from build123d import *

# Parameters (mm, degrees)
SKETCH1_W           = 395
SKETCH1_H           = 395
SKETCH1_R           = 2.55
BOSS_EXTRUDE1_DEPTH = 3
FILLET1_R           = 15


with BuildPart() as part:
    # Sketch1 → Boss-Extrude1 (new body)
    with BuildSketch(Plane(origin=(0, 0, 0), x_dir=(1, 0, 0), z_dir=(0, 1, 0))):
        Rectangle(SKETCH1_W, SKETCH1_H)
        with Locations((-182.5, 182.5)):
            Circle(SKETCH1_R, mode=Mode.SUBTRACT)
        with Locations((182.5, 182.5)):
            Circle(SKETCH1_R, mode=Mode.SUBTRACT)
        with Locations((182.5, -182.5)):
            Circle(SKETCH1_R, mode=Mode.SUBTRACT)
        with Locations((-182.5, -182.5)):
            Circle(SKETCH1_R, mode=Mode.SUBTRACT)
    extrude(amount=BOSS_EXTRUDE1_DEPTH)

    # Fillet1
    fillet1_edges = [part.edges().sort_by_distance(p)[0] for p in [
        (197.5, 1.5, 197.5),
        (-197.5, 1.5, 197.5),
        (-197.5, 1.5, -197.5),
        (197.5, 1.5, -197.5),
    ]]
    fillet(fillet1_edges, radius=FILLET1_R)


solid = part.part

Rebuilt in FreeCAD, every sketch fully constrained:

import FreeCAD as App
import Part
import Sketcher

V = App.Vector


def edges_at(feature, points):
    """Names of the edges that pass closest to the given points."""
    edges = feature.Shape.Edges
    near = lambda p: min(range(len(edges)), key=lambda i: edges[i].distToShape(Part.Vertex(*p))[0])
    return sorted({f"Edge{near(p) + 1}" for p in points})

doc = App.newDocument("Part")
body = doc.addObject("PartDesign::Body", "Body")

# Sketch on XZ plane
sketch1 = doc.addObject("Sketcher::SketchObject", "Sketch")
body.addObject(sketch1)
sketch1.AttachmentSupport = (doc.XZ_Plane, [""])
sketch1.MapMode = "FlatFace"
sketch1.addGeometry([
    Part.LineSegment(V(-197.5, -197.5, 0), V(-197.5, 197.5, 0)),  # 0
    Part.LineSegment(V(-197.5, 197.5, 0), V(197.5, 197.5, 0)),  # 1
    Part.LineSegment(V(197.5, 197.5, 0), V(197.5, -197.5, 0)),  # 2
    Part.LineSegment(V(197.5, -197.5, 0), V(-197.5, -197.5, 0)),  # 3
    Part.Circle(V(-182.5, 182.5, 0), V(0, 0, 1), 2.5),  # 4
    Part.Circle(V(182.5, 182.5, 0), V(0, 0, 1), 2.5),  # 5
    Part.Circle(V(-182.5, -182.5, 0), V(0, 0, 1), 2.5),  # 6
    Part.Circle(V(182.5, -182.5, 0), V(0, 0, 1), 2.5),  # 7
], False)
sketch1.addConstraint([
    Sketcher.Constraint("Coincident", 0, 2, 1, 1),
    Sketcher.Constraint("Coincident", 1, 2, 2, 1),
    Sketcher.Constraint("Coincident", 2, 2, 3, 1),
    Sketcher.Constraint("Coincident", 3, 2, 0, 1),
    Sketcher.Constraint("Vertical", 0),
    Sketcher.Constraint("Horizontal", 1),
    Sketcher.Constraint("Vertical", 2),
    Sketcher.Constraint("Horizontal", 3),
    Sketcher.Constraint("Equal", 4, 5),
    Sketcher.Constraint("Equal", 5, 6),
    Sketcher.Constraint("Equal", 6, 7),
    Sketcher.Constraint("Symmetric", 5, 3, 6, 3, -1, 1),
    Sketcher.Constraint("Symmetric", 4, 3, 7, 3, -1, 1),
    Sketcher.Constraint("Symmetric", 0, 2, 2, 2, -1, 1),
    Sketcher.Constraint("Symmetric", 4, 3, 5, 3, -2),
    Sketcher.Constraint("Equal", 3, 0),
    Sketcher.Constraint("Diameter", 4, 5.1),
    Sketcher.Constraint("DistanceX", 1, 1, 1, 2, 395.0),
    Sketcher.Constraint("DistanceX", 4, 3, 5, 3, 365.0),
    Sketcher.Constraint("DistanceY", 6, 3, 4, 3, 365.0),
])
pad1 = doc.addObject("PartDesign::Pad", "Pad")
body.addObject(pad1)
pad1.Profile = sketch1
pad1.Length = 3
pad1.Reversed = True
doc.recompute()

fillet = doc.addObject("PartDesign::Fillet", "Fillet")
body.addObject(fillet)
fillet.Base = (pad1, edges_at(pad1, [
    (197.5, 1.5, 197.5),
    (-197.5, 1.5, 197.5),
    (-197.5, 1.5, -197.5),
    (197.5, 1.5, -197.5),
]))
fillet.Radius = 15

doc.recompute()
